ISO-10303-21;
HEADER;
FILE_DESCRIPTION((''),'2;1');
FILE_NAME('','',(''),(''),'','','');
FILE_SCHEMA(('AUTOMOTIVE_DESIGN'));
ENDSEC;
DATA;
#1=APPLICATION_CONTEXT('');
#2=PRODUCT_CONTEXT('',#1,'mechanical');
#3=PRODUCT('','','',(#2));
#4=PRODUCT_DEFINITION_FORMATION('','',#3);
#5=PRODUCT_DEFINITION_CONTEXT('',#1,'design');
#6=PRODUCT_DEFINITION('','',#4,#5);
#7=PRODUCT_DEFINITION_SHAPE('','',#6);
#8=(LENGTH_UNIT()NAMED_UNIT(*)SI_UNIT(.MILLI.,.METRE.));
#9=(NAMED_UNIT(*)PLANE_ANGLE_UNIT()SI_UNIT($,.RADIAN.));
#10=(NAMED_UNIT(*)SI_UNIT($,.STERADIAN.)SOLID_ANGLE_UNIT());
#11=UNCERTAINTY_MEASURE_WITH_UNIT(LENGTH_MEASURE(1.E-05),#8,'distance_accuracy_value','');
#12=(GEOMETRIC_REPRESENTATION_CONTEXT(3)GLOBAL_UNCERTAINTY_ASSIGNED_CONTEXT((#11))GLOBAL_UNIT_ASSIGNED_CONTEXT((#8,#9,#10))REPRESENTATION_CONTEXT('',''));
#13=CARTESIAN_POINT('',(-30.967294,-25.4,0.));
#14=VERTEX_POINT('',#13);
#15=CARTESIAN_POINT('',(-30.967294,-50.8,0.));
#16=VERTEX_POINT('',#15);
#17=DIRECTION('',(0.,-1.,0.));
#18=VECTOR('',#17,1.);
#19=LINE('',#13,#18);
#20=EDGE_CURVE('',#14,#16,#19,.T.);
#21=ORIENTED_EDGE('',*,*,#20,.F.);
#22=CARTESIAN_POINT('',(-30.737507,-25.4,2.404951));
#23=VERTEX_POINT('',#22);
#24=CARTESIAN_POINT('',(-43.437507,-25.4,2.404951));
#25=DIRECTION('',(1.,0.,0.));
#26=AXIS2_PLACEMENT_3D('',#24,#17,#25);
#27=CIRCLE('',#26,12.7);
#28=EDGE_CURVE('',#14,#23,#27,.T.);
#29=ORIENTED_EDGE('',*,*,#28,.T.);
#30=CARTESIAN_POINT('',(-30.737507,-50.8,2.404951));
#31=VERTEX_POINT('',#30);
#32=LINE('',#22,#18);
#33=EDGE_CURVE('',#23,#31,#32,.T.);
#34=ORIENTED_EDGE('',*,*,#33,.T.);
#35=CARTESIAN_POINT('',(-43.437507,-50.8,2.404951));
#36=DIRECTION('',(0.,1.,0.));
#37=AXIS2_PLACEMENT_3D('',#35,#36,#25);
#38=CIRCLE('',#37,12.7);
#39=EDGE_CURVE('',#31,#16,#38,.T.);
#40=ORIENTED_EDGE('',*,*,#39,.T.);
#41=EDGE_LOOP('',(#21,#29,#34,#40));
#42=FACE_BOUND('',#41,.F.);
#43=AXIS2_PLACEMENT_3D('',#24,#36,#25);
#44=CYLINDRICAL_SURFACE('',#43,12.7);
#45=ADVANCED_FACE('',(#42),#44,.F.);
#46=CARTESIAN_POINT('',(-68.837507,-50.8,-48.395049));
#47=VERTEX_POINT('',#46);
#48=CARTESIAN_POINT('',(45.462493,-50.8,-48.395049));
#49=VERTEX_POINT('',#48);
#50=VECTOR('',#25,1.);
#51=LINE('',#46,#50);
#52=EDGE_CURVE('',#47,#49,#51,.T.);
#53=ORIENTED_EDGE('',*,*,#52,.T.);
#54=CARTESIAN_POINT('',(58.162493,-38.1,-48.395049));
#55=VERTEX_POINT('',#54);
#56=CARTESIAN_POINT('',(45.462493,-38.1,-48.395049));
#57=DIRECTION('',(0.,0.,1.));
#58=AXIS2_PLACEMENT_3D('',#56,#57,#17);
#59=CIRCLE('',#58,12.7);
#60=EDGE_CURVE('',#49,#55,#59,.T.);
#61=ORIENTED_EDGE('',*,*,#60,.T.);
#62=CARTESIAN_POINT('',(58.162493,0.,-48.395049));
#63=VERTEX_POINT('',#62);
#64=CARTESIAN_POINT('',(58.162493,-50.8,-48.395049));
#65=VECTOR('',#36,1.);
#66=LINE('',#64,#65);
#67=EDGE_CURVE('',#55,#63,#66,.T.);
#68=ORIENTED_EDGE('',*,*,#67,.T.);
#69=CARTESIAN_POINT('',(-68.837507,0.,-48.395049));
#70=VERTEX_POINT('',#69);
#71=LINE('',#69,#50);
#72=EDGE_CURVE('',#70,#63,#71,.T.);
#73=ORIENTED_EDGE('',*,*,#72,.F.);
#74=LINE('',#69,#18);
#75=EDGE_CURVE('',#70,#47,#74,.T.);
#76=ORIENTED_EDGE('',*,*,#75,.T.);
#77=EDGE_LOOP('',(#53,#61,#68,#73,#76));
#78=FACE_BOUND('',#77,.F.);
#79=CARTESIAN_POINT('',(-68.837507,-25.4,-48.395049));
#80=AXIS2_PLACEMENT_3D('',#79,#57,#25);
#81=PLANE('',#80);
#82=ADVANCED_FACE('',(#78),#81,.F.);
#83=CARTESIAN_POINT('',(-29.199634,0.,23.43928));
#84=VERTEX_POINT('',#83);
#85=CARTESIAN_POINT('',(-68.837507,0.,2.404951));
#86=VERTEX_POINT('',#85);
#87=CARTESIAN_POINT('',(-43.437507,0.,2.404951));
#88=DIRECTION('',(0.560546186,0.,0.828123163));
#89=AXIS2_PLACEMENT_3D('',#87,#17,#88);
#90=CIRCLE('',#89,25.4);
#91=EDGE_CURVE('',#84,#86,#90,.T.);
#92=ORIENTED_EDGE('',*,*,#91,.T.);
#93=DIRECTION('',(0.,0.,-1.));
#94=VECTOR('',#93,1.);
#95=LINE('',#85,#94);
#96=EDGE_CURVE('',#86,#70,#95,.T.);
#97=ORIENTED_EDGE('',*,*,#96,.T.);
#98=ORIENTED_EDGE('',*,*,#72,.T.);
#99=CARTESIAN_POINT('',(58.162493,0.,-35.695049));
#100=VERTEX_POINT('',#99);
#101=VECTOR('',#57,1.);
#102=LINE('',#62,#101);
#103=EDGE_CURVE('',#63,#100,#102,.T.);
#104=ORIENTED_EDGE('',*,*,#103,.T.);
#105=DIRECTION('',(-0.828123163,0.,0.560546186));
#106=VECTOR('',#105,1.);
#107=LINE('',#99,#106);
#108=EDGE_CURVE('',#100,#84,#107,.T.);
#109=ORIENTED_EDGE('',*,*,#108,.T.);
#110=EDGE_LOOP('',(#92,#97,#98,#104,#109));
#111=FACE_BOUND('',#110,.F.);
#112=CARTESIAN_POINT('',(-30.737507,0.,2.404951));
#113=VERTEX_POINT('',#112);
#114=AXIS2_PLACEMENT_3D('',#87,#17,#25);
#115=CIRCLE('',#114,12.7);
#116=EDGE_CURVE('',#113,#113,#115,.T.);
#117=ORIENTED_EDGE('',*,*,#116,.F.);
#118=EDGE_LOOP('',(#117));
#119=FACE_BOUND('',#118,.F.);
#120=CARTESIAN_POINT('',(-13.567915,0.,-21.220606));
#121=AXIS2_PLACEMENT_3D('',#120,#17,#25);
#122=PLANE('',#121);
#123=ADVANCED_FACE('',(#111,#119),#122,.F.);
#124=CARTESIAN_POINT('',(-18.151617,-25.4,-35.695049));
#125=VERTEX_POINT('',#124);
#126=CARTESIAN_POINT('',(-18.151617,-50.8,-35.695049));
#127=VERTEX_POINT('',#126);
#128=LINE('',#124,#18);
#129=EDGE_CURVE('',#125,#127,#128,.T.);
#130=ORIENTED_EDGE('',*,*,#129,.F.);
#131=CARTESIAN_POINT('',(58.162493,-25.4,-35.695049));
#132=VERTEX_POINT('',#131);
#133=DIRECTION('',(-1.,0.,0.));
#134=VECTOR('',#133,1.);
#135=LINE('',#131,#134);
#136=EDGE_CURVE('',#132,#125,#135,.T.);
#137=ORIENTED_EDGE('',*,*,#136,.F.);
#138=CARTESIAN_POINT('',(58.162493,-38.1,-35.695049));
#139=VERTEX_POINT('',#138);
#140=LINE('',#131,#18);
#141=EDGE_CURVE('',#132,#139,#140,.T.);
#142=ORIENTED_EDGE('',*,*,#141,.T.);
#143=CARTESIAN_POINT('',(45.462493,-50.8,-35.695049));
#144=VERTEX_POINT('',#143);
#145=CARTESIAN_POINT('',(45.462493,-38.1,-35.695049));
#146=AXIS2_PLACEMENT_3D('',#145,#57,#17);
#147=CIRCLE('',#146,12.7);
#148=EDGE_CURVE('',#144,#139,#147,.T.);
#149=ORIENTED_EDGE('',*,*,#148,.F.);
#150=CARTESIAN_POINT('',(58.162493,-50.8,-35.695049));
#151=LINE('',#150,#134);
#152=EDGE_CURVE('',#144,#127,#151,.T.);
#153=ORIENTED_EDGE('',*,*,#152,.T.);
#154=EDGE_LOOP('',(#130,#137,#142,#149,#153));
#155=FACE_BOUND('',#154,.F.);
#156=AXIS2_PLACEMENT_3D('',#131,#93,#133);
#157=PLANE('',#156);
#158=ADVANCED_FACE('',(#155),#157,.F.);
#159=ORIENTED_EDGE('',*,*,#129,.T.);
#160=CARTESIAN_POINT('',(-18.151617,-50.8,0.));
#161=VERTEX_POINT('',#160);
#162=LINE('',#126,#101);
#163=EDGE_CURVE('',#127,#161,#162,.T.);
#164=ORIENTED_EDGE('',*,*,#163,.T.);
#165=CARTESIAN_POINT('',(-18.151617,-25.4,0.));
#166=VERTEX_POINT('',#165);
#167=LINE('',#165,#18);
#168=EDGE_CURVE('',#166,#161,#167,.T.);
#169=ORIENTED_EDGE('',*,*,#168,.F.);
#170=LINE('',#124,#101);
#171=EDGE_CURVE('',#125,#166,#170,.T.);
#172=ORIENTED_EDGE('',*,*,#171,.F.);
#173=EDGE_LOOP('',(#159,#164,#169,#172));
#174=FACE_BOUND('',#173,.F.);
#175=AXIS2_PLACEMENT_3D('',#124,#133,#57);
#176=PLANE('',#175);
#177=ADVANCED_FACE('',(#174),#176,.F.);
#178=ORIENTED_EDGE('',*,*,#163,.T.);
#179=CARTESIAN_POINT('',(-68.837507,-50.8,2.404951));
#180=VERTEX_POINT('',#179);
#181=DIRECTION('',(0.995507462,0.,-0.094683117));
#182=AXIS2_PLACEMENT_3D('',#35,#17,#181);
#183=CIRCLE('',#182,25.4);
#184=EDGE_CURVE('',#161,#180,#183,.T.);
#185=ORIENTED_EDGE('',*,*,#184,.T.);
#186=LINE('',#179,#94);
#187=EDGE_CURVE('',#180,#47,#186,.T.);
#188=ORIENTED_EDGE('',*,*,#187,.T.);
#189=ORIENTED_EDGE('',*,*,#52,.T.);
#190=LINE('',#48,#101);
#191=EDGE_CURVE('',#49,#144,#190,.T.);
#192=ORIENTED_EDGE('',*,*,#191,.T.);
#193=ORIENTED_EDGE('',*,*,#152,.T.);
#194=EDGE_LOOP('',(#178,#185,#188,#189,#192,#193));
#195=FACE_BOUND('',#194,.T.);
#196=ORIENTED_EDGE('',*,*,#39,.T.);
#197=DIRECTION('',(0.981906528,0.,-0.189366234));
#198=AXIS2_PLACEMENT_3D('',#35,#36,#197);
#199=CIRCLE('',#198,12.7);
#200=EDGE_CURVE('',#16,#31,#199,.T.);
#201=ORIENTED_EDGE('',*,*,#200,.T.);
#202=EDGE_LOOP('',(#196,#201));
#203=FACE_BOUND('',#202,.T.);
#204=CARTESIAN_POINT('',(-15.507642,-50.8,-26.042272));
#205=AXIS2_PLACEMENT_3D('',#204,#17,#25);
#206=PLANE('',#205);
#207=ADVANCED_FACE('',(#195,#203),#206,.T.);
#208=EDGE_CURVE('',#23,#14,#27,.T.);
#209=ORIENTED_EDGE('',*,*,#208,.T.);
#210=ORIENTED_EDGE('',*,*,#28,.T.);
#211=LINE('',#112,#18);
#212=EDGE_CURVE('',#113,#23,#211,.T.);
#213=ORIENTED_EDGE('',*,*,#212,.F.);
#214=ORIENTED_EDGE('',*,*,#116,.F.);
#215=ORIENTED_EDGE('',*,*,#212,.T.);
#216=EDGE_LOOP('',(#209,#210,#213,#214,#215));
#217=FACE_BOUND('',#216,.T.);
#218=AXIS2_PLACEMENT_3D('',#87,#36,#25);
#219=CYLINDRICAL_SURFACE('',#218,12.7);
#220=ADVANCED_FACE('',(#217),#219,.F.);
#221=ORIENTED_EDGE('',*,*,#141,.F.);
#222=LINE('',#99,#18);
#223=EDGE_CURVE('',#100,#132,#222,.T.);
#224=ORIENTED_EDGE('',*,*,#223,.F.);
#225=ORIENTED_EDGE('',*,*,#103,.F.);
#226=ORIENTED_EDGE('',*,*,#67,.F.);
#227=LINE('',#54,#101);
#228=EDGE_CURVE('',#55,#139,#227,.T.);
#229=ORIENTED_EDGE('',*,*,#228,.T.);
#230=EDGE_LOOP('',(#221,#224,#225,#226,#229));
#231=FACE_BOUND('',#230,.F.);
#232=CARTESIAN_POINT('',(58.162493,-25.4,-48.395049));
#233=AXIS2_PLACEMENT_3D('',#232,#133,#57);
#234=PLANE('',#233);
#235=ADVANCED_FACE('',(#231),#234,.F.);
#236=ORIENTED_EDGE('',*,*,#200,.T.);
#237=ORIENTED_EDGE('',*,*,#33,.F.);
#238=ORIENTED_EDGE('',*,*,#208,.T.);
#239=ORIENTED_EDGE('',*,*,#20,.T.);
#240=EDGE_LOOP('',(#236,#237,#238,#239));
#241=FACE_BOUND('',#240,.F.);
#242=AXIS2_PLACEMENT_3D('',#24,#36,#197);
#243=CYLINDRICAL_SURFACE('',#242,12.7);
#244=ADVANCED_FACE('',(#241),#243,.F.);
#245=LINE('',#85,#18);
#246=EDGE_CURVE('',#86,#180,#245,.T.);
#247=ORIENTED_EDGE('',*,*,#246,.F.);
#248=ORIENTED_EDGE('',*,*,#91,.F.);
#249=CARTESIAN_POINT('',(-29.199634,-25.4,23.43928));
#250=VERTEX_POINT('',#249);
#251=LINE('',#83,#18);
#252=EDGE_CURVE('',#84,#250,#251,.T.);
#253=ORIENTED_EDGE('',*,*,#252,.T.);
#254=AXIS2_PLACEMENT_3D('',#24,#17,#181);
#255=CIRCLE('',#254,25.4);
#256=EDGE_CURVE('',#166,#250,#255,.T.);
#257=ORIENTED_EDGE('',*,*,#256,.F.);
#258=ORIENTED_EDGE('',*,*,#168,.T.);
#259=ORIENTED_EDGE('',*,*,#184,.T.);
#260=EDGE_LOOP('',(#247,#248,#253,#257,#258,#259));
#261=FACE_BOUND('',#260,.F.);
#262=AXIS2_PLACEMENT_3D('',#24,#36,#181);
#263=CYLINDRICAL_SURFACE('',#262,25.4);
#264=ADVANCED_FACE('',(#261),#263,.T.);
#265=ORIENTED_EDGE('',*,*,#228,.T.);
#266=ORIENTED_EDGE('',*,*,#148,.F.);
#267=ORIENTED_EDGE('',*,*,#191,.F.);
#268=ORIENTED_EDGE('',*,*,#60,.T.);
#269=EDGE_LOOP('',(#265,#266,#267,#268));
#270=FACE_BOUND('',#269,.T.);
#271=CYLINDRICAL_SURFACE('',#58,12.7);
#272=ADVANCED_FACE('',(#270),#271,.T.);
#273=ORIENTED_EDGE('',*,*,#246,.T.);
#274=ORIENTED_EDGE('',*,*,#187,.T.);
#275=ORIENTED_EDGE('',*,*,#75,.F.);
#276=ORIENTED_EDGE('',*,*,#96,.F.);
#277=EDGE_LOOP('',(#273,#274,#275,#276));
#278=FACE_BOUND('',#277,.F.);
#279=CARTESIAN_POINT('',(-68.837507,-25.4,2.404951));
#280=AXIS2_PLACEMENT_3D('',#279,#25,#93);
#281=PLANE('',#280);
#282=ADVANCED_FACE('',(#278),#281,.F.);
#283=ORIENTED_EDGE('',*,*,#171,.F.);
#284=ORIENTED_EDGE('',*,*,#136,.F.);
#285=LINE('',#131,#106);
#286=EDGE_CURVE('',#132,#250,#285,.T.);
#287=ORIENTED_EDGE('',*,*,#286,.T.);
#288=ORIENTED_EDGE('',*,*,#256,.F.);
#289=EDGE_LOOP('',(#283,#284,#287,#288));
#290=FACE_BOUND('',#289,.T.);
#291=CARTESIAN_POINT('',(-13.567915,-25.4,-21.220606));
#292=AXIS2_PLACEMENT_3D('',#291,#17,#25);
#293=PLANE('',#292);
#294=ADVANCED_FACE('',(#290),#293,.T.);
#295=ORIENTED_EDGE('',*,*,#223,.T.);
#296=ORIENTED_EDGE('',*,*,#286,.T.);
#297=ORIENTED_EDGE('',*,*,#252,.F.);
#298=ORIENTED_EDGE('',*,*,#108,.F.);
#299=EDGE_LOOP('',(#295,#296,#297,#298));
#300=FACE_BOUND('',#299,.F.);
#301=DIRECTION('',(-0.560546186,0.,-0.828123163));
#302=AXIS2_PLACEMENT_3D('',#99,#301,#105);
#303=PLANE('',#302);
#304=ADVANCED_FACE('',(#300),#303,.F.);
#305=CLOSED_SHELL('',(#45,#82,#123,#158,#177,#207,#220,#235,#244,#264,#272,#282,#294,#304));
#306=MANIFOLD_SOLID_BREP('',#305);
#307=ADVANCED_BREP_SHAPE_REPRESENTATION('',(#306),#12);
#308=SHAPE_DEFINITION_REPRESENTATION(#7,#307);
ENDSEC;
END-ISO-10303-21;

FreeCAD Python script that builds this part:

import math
import FreeCAD as App
import Part
import Sketcher
from FreeCAD import Vector
Q = App.Units.Quantity


def edges_at(feature, points):
    """Names of the edges that pass closest to the given points."""
    edges = feature.Shape.Edges
    near = lambda p: min(range(len(edges)), key=lambda i: edges[i].distToShape(Part.Vertex(*p))[0])
    return sorted({f"Edge{near(p) + 1}" for p in points})

doc = App.newDocument("Part")
params = doc.addObject("Spreadsheet::Sheet", "Params")
for row, (alias, value) in enumerate([
    ("sketch1_diameter", "1 in"),
    ("sketch1_radius", "1 in"),
    ("sketch1_width", "5 in"),
    ("sketch1_height", "2 in"),
    ("sketch1_height2", "0.5 in"),
    ("pad1_length", "1 in"),
    ("sketch2_radius", "1 in"),
    ("sketch2_radius2", "0.5 in"),
    ("sketch2_width", "5 in"),
    ("sketch2_height", "2 in"),
    ("sketch2_height2", "0.5 in"),
    ("pad2_length", "1 in"),
    ("fillet_radius", "0.5 in"),
], start=1):
    params.set(f"A{row}", alias)
    params.set(f"B{row}", "=" + value)
    params.setAlias(f"B{row}", alias)

body = doc.addObject("PartDesign::Body", "Body")

# Sketch on XZ plane
sketch1 = body.newObject("Sketcher::SketchObject", "Sketch")
sketch1.AttachmentSupport = (doc.getObject("XZ_Plane"), [""])
sketch1.MapMode = "FlatFace"
sketch1.addGeometry(Part.LineSegment(Vector(58, -36, 0), Vector(-29, 23, 0)), False)
sketch1.addGeometry(Part.ArcOfCircle(Part.Circle(Vector(-43, 2, 0), Vector(0, 0, 1), 25), math.radians(56), math.radians(180)), False)
sketch1.addGeometry(Part.LineSegment(Vector(-69, 2, 0), Vector(-69, -48, 0)), False)
sketch1.addGeometry(Part.LineSegment(Vector(-69, -48, 0), Vector(58, -48, 0)), False)
sketch1.addGeometry(Part.LineSegment(Vector(58, -48, 0), Vector(58, -36, 0)), False)
sketch1.addGeometry(Part.Circle(Vector(-43, 2, 0), Vector(0, 0, 1), 13), False)
sketch1.addConstraint(Sketcher.Constraint("Tangent", 0, 2, 1, 1))
sketch1.addConstraint(Sketcher.Constraint("Tangent", 1, 2, 2, 1))
sketch1.addConstraint(Sketcher.Constraint("Coincident", 2, 2, 3, 1))
sketch1.addConstraint(Sketcher.Constraint("Coincident", 3, 2, 4, 1))
sketch1.addConstraint(Sketcher.Constraint("Coincident", 4, 2, 0, 1))
sketch1.addConstraint(Sketcher.Constraint("Vertical", 2))
sketch1.addConstraint(Sketcher.Constraint("Horizontal", 3))
sketch1.addConstraint(Sketcher.Constraint("Vertical", 4))
sketch1.addConstraint(Sketcher.Constraint("Coincident", 5, 3, 1, 3))
sketch1.addConstraint(Sketcher.Constraint("Diameter", 5, Q("1 in")))
sketch1.addConstraint(Sketcher.Constraint("Radius", 1, Q("1 in")))
sketch1.addConstraint(Sketcher.Constraint("DistanceX", 3, 1, 3, 2, Q("5 in")))
sketch1.addConstraint(Sketcher.Constraint("DistanceY", 2, 2, 2, 1, Q("2 in")))
sketch1.addConstraint(Sketcher.Constraint("DistanceY", 4, 1, 4, 2, Q("0.5 in")))
sketch1.addConstraint(Sketcher.Constraint("DistanceY", -1, 1, 1, 3, Q("2.404951 mm")))
sketch1.addConstraint(Sketcher.Constraint("DistanceX", 1, 3, -1, 1, Q("43.437507 mm")))
sketch1.setExpression("Constraints[9]", "Params.sketch1_diameter")
sketch1.setExpression("Constraints[10]", "Params.sketch1_radius")
sketch1.setExpression("Constraints[11]", "Params.sketch1_width")
sketch1.setExpression("Constraints[12]", "Params.sketch1_height")
sketch1.setExpression("Constraints[13]", "Params.sketch1_height2")
pad1 = body.newObject("PartDesign::Pad", "Pad")
pad1.Profile = sketch1
pad1.setExpression("Length", "Params.pad1_length")

# Sketch on XZ plane
sketch2 = body.newObject("Sketcher::SketchObject", "Sketch001")
sketch2.AttachmentSupport = (doc.getObject("XZ_Plane"), [""])
sketch2.MapMode = "FlatFace"
sketch2.AttachmentOffset = App.Placement(Vector(0, 0, 1 * 25.4), App.Rotation())
sketch2.addGeometry(Part.LineSegment(Vector(-18.2, -35.7, 0), Vector(-18.2, 0, 0)), False)
sketch2.addGeometry(Part.ArcOfCircle(Part.Circle(Vector(-43.4, 2.4, 0), Vector(0, 0, 1), 25.4), math.radians(-5), math.radians(180)), False)
sketch2.addGeometry(Part.LineSegment(Vector(-68.8, 2.4, 0), Vector(-68.8, -48.4, 0)), False)
sketch2.addGeometry(Part.LineSegment(Vector(-68.8, -48.4, 0), Vector(58.2, -48.4, 0)), False)
sketch2.addGeometry(Part.LineSegment(Vector(58.2, -48.4, 0), Vector(58.2, -35.7, 0)), False)
sketch2.addGeometry(Part.LineSegment(Vector(58.2, -35.7, 0), Vector(-18.2, -35.7, 0)), False)
sketch2.addGeometry(Part.ArcOfCircle(Part.Circle(Vector(-43.4, 2.4, 0), Vector(0, 0, 1), 12.7), math.radians(-10.92), math.radians(0)), False)
sketch2.addGeometry(Part.ArcOfCircle(Part.Circle(Vector(-43.4, 2.4, 0), Vector(0, 0, 1), 12.7), math.radians(0), math.radians(349)), False)
sketch2.addConstraint(Sketcher.Constraint("Coincident", 0, 2, 1, 1))
sketch2.addConstraint(Sketcher.Constraint("Tangent", 1, 2, 2, 1))
sketch2.addConstraint(Sketcher.Constraint("Coincident", 2, 2, 3, 1))
sketch2.addConstraint(Sketcher.Constraint("Coincident", 3, 2, 4, 1))
sketch2.addConstraint(Sketcher.Constraint("Coincident", 4, 2, 5, 1))
sketch2.addConstraint(Sketcher.Constraint("Coincident", 5, 2, 0, 1))
sketch2.addConstraint(Sketcher.Constraint("Tangent", 6, 1, 7, 2))
sketch2.addConstraint(Sketcher.Constraint("Coincident", 7, 1, 6, 2))
sketch2.addConstraint(Sketcher.Constraint("Vertical", 0))
sketch2.addConstraint(Sketcher.Constraint("Vertical", 2))
sketch2.addConstraint(Sketcher.Constraint("Horizontal", 3))
sketch2.addConstraint(Sketcher.Constraint("Vertical", 4))
sketch2.addConstraint(Sketcher.Constraint("Horizontal", 5))
sketch2.addConstraint(Sketcher.Constraint("Coincident", 6, 3, 1, 3))
sketch2.addConstraint(Sketcher.Constraint("PointOnObject", 0, 2, -1))
sketch2.addConstraint(Sketcher.Constraint("PointOnObject", 6, 1, -1))
sketch2.addConstraint(Sketcher.Constraint("Horizontal", 1, 2, 7, 1))
sketch2.addConstraint(Sketcher.Constraint("Radius", 1, Q("1 in")))
sketch2.addConstraint(Sketcher.Constraint("Radius", 6, Q("0.5 in")))
sketch2.addConstraint(Sketcher.Constraint("DistanceX", 3, 1, 3, 2, Q("5 in")))
sketch2.addConstraint(Sketcher.Constraint("DistanceY", 2, 2, 2, 1, Q("2 in")))
sketch2.addConstraint(Sketcher.Constraint("DistanceY", 4, 1, 4, 2, Q("0.5 in")))
sketch2.addConstraint(Sketcher.Constraint("DistanceX", 5, 2, 5, 1, Q("76.31411 mm")))
sketch2.addConstraint(Sketcher.Constraint("DistanceX", 1, 3, -1, 1, Q("43.437507 mm")))
sketch2.setExpression("Constraints[17]", "Params.sketch2_radius")
sketch2.setExpression("Constraints[18]", "Params.sketch2_radius2")
sketch2.setExpression("Constraints[19]", "Params.sketch2_width")
sketch2.setExpression("Constraints[20]", "Params.sketch2_height")
sketch2.setExpression("Constraints[21]", "Params.sketch2_height2")
pad2 = body.newObject("PartDesign::Pad", "Pad001")
pad2.Profile = sketch2
pad2.setExpression("Length", "Params.pad2_length")
doc.recompute()

fillet = body.newObject("PartDesign::Fillet", "Fillet")
fillet.Base = (pad2, edges_at(pad2, [(58.162, -50.8, -42.045)]))
fillet.setExpression("Radius", "Params.fillet_radius")

doc.recompute()
